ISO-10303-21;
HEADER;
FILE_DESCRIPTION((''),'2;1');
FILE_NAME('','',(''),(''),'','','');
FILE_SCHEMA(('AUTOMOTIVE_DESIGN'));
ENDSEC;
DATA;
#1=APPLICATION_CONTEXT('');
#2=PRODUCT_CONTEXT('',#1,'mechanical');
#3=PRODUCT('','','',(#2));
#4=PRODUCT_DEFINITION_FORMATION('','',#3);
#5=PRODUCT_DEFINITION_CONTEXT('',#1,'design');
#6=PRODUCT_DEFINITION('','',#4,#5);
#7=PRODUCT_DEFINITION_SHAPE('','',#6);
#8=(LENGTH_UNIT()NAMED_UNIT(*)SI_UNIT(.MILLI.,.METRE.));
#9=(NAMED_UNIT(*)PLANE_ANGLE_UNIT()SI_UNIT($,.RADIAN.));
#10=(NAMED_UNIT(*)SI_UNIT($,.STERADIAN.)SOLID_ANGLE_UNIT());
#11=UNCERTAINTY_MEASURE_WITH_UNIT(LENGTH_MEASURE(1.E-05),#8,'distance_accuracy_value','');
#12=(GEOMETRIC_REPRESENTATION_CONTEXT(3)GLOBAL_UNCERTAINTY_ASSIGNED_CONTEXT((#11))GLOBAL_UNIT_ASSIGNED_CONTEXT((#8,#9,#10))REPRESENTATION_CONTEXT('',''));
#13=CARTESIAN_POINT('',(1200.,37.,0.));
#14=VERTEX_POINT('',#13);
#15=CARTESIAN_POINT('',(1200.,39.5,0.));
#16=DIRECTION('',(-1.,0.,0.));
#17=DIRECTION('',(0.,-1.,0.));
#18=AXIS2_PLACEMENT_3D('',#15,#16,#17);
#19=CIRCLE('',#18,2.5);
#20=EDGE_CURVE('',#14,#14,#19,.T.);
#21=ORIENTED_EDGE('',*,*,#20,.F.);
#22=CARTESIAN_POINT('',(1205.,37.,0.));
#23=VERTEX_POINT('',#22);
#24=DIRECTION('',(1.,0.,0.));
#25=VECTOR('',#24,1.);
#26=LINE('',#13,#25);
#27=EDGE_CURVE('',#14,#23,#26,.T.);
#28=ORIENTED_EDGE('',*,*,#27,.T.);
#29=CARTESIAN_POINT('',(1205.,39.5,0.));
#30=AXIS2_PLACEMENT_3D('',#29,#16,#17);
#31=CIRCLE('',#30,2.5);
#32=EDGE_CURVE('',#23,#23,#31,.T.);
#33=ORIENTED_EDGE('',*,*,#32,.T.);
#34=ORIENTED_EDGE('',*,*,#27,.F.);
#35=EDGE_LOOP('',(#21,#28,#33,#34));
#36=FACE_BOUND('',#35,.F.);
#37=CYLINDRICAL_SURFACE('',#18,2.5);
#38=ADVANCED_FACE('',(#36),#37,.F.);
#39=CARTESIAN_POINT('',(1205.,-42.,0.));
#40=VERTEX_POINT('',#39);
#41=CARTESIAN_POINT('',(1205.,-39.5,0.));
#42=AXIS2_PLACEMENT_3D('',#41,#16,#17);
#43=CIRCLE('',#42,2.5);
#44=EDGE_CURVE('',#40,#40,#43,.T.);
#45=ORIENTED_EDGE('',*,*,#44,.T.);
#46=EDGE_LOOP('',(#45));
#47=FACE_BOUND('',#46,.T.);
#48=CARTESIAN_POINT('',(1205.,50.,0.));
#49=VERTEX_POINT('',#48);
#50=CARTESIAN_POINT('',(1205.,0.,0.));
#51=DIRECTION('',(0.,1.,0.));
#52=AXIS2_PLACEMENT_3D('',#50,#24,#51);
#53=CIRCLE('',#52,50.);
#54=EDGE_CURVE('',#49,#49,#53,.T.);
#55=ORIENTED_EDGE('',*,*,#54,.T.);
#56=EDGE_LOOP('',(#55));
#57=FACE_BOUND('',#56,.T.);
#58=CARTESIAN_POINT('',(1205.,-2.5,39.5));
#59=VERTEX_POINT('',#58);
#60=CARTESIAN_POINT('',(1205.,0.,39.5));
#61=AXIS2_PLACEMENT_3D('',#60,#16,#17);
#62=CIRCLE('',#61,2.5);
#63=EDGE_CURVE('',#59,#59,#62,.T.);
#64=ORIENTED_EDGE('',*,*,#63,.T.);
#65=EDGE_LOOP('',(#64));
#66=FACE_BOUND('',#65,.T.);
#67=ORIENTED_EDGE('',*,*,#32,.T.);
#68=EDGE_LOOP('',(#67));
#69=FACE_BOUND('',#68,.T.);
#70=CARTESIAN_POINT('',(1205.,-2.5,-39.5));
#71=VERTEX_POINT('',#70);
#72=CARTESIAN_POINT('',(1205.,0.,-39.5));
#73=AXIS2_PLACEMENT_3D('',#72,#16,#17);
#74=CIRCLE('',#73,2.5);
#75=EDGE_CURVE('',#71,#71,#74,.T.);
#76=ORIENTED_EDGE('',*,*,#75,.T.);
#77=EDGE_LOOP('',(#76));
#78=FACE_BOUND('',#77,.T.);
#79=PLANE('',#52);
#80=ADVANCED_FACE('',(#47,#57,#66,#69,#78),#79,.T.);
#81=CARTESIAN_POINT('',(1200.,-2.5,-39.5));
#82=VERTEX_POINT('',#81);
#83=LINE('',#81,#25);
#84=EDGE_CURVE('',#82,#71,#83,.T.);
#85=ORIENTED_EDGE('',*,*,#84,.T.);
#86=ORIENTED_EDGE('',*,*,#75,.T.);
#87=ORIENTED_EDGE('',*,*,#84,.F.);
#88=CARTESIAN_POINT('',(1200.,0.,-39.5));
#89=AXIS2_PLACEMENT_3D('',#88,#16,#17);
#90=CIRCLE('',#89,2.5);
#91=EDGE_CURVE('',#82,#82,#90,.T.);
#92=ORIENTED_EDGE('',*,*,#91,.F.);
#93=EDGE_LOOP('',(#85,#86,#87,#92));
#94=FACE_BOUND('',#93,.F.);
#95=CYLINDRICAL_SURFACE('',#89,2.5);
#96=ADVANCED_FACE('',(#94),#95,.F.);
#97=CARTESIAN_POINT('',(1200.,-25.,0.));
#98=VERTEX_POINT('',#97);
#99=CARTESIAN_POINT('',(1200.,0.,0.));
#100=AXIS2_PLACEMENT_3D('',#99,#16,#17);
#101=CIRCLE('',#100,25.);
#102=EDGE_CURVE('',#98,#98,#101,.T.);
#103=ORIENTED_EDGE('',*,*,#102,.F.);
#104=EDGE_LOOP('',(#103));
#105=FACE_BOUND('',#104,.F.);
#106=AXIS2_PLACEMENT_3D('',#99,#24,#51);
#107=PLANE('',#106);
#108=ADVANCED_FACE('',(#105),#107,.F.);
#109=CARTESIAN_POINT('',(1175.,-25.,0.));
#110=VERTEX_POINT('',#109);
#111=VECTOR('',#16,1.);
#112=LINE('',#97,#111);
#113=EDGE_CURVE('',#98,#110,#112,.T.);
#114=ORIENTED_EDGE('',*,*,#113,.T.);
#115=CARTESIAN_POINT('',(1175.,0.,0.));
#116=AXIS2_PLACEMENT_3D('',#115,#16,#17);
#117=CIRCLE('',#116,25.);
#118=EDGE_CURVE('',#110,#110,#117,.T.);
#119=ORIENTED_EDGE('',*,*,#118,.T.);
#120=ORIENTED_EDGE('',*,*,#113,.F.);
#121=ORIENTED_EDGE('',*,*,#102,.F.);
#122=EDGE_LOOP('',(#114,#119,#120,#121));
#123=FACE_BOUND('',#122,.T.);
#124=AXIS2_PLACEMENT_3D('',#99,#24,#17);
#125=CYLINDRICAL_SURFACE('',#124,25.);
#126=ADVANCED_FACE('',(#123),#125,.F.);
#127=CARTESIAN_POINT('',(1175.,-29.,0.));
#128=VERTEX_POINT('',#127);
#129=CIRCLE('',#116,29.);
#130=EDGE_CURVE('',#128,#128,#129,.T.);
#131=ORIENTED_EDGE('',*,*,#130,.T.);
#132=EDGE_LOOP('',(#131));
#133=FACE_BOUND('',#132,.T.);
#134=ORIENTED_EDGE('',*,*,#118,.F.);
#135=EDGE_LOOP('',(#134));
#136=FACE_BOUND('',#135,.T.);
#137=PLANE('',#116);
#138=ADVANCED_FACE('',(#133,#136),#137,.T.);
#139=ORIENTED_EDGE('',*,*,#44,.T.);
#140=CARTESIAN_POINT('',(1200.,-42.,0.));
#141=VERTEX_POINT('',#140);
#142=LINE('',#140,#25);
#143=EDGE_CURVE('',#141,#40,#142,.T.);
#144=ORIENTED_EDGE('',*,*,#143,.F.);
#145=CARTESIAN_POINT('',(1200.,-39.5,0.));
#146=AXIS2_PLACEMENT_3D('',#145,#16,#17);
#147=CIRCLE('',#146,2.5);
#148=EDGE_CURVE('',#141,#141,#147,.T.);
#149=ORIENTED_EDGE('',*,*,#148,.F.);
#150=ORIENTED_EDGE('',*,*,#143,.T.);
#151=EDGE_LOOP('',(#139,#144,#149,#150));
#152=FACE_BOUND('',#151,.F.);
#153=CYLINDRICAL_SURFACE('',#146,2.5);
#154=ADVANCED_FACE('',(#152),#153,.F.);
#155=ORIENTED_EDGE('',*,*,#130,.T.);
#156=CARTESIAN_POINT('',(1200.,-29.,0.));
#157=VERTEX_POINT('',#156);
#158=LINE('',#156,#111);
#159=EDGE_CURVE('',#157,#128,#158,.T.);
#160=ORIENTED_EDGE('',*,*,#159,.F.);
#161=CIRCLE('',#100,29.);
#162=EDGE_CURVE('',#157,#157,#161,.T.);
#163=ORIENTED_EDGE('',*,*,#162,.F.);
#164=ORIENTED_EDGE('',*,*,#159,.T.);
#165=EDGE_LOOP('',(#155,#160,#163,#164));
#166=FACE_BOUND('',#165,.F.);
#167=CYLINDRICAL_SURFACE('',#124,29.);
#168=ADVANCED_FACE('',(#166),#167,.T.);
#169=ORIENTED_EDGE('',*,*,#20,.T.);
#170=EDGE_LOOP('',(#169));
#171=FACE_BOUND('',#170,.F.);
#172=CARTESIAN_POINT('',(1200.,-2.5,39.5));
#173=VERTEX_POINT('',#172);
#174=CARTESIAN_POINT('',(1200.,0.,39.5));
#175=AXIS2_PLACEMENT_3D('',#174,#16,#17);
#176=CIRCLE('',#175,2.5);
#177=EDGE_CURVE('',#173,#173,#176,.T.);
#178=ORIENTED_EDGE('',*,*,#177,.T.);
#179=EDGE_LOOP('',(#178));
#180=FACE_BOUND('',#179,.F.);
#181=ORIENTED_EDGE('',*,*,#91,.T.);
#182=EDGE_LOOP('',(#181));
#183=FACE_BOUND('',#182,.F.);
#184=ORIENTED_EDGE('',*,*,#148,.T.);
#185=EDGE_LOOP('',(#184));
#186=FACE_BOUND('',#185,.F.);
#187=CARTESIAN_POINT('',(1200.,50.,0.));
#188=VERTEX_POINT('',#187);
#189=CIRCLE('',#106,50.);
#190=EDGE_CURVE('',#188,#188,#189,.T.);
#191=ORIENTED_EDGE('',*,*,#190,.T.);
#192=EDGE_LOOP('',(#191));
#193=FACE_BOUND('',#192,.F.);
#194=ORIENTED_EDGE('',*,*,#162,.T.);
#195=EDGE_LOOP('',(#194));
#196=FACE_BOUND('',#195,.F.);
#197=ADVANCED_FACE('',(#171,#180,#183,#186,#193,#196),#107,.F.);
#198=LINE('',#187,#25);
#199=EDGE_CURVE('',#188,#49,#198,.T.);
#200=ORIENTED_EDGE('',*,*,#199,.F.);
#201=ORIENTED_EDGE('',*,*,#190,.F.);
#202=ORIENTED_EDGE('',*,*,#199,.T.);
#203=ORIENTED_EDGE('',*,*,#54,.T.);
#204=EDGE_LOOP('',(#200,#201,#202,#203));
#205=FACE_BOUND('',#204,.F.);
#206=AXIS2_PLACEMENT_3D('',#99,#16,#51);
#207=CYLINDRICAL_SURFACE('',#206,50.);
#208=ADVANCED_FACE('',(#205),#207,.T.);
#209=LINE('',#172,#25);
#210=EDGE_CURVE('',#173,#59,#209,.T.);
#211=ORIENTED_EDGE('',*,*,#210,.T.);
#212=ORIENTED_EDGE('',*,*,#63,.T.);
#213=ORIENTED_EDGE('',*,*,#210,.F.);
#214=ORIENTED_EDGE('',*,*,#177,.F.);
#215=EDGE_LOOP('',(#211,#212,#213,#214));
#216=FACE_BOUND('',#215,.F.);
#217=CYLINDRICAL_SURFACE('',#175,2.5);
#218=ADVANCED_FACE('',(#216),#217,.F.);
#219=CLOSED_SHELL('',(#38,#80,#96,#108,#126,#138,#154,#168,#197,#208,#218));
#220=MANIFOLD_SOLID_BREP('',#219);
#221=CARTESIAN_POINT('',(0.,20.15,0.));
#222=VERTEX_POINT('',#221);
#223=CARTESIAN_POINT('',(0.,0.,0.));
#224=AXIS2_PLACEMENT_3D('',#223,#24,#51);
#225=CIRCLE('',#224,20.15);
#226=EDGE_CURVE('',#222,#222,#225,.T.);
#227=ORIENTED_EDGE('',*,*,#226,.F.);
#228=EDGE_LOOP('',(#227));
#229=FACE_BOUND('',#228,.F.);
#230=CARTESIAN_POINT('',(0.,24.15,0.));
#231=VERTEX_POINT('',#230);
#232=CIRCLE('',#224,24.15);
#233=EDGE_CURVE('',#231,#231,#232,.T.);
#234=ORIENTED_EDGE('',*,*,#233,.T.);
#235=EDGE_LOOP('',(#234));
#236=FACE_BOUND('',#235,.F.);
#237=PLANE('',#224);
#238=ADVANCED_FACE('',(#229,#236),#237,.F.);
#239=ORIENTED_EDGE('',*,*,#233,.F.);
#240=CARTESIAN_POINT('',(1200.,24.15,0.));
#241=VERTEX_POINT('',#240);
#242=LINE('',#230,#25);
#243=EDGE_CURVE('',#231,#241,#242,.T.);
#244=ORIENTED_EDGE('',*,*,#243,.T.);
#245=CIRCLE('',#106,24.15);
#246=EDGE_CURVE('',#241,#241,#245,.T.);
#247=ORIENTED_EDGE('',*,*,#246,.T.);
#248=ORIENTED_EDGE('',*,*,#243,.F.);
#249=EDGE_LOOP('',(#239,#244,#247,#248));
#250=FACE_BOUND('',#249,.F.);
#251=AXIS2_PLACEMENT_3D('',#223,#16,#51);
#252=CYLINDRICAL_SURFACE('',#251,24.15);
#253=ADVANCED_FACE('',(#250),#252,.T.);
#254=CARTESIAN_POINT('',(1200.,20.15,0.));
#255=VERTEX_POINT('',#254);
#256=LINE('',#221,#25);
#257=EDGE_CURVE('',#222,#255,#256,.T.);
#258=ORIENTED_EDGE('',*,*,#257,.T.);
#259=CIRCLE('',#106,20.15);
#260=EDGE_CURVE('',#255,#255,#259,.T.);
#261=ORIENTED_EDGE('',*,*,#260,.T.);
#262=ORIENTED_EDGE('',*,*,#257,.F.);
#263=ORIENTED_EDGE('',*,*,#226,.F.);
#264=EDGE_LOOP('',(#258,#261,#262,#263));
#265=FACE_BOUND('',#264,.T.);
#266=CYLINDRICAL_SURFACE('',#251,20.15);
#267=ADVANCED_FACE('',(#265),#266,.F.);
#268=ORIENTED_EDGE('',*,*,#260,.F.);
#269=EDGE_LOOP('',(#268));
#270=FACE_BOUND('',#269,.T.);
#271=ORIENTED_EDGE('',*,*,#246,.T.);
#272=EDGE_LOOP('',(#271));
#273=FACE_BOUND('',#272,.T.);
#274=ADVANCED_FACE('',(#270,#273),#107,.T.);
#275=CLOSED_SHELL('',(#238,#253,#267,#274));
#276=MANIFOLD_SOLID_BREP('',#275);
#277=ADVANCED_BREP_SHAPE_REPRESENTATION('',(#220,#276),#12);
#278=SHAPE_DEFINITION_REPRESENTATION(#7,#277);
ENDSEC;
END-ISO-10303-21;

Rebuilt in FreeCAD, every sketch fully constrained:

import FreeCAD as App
import Part
import Sketcher

V = App.Vector
Q = App.Units.Quantity

doc = App.newDocument("Part")
body = doc.addObject("PartDesign::Body", "Body")

sketch1 = body.newObject("Sketcher::SketchObject", "Sketch")
sketch1.AttachmentSupport = (doc.getObject("YZ_Plane"), [""])
sketch1.MapMode = "FlatFace"
sketch1.addGeometry([
    Part.Circle(V(0, 0, 0), V(0, 0, 1), 24.15),
    Part.Circle(V(0, 0, 0), V(0, 0, 1), 20.15),
], False)
sketch1.addConstraint([
    Sketcher.Constraint("Coincident", 0, 3, -1, 1),
    Sketcher.Constraint("Coincident", 1, 3, -1, 1),
    Sketcher.Constraint("Diameter", 0, Q("48.3 mm")),
    Sketcher.Constraint("Diameter", 1, Q("40.3 mm")),
])
pad1 = body.newObject("PartDesign::Pad", "Pad")
pad1.Profile = sketch1
pad1.Length = 1200
body2 = doc.addObject("PartDesign::Body", "Body001")

sketch2 = body2.newObject("Sketcher::SketchObject", "Sketch001")
sketch2.AttachmentSupport = (doc.getObject("YZ_Plane001"), [""])
sketch2.MapMode = "FlatFace"
sketch2.AttachmentOffset = App.Placement(V(0, 0, 1200), App.Rotation())
sketch2.addGeometry(Part.Circle(V(0, 0, 0), V(0, 0, 1), 50), False)
sketch2.addConstraint([
    Sketcher.Constraint("Coincident", 0, 3, -1, 1),
    Sketcher.Constraint("Diameter", 0, Q("100 mm")),
])
pad2 = body2.newObject("PartDesign::Pad", "Pad001")
pad2.Profile = sketch2
pad2.Length = 5

sketch3 = body2.newObject("Sketcher::SketchObject", "Sketch002")
sketch3.AttachmentSupport = (doc.getObject("YZ_Plane001"), [""])
sketch3.MapMode = "FlatFace"
sketch3.AttachmentOffset = App.Placement(V(0, 0, 1200), App.Rotation())
sketch3.addGeometry([
    Part.Circle(V(0, 0, 0), V(0, 0, 1), 29),
    Part.Circle(V(0, 0, 0), V(0, 0, 1), 25),
], False)
sketch3.addConstraint([
    Sketcher.Constraint("Coincident", 0, 3, -1, 1),
    Sketcher.Constraint("Coincident", 1, 3, -1, 1),
    Sketcher.Constraint("Diameter", 0, Q("58 mm")),
    Sketcher.Constraint("Diameter", 1, Q("50 mm")),
])
pad3 = body2.newObject("PartDesign::Pad", "Pad002")
pad3.Profile = sketch3
pad3.Length = 25
pad3.Reversed = True

sketch4 = body2.newObject("Sketcher::SketchObject", "Sketch003")
sketch4.AttachmentSupport = (doc.getObject("YZ_Plane001"), [""])
sketch4.MapMode = "FlatFace"
sketch4.AttachmentOffset = App.Placement(V(0, 0, 1200), App.Rotation())
sketch4.addGeometry([
    Part.Circle(V(39.5, 0, 0), V(0, 0, 1), 2.5),
    Part.Circle(V(-39.5, 0, 0), V(0, 0, 1), 2.5),
    Part.Circle(V(0, 39.5, 0), V(0, 0, 1), 2.5),
    Part.Circle(V(0, -39.5, 0), V(0, 0, 1), 2.5),
], False)
sketch4.addConstraint([
    Sketcher.Constraint("Equal", 0, 1),
    Sketcher.Constraint("Equal", 1, 2),
    Sketcher.Constraint("Equal", 2, 3),
    Sketcher.Constraint("Symmetric", 0, 3, 1, 3, -1, 1),
    Sketcher.Constraint("Symmetric", 2, 3, 3, 3, -1, 1),
    Sketcher.Constraint("PointOnObject", 0, 3, -1),
    Sketcher.Constraint("PointOnObject", 2, 3, -2),
    Sketcher.Constraint("Diameter", 0, Q("5 mm")),
    Sketcher.Constraint("DistanceX", 1, 3, 0, 3, Q("79 mm")),
    Sketcher.Constraint("DistanceY", 3, 3, 2, 3, Q("79 mm")),
])
pocket1 = body2.newObject("PartDesign::Pocket", "Pocket")
pocket1.Profile = sketch4
pocket1.Type = "ThroughAll"
pocket1.Reversed = True

doc.recompute()
